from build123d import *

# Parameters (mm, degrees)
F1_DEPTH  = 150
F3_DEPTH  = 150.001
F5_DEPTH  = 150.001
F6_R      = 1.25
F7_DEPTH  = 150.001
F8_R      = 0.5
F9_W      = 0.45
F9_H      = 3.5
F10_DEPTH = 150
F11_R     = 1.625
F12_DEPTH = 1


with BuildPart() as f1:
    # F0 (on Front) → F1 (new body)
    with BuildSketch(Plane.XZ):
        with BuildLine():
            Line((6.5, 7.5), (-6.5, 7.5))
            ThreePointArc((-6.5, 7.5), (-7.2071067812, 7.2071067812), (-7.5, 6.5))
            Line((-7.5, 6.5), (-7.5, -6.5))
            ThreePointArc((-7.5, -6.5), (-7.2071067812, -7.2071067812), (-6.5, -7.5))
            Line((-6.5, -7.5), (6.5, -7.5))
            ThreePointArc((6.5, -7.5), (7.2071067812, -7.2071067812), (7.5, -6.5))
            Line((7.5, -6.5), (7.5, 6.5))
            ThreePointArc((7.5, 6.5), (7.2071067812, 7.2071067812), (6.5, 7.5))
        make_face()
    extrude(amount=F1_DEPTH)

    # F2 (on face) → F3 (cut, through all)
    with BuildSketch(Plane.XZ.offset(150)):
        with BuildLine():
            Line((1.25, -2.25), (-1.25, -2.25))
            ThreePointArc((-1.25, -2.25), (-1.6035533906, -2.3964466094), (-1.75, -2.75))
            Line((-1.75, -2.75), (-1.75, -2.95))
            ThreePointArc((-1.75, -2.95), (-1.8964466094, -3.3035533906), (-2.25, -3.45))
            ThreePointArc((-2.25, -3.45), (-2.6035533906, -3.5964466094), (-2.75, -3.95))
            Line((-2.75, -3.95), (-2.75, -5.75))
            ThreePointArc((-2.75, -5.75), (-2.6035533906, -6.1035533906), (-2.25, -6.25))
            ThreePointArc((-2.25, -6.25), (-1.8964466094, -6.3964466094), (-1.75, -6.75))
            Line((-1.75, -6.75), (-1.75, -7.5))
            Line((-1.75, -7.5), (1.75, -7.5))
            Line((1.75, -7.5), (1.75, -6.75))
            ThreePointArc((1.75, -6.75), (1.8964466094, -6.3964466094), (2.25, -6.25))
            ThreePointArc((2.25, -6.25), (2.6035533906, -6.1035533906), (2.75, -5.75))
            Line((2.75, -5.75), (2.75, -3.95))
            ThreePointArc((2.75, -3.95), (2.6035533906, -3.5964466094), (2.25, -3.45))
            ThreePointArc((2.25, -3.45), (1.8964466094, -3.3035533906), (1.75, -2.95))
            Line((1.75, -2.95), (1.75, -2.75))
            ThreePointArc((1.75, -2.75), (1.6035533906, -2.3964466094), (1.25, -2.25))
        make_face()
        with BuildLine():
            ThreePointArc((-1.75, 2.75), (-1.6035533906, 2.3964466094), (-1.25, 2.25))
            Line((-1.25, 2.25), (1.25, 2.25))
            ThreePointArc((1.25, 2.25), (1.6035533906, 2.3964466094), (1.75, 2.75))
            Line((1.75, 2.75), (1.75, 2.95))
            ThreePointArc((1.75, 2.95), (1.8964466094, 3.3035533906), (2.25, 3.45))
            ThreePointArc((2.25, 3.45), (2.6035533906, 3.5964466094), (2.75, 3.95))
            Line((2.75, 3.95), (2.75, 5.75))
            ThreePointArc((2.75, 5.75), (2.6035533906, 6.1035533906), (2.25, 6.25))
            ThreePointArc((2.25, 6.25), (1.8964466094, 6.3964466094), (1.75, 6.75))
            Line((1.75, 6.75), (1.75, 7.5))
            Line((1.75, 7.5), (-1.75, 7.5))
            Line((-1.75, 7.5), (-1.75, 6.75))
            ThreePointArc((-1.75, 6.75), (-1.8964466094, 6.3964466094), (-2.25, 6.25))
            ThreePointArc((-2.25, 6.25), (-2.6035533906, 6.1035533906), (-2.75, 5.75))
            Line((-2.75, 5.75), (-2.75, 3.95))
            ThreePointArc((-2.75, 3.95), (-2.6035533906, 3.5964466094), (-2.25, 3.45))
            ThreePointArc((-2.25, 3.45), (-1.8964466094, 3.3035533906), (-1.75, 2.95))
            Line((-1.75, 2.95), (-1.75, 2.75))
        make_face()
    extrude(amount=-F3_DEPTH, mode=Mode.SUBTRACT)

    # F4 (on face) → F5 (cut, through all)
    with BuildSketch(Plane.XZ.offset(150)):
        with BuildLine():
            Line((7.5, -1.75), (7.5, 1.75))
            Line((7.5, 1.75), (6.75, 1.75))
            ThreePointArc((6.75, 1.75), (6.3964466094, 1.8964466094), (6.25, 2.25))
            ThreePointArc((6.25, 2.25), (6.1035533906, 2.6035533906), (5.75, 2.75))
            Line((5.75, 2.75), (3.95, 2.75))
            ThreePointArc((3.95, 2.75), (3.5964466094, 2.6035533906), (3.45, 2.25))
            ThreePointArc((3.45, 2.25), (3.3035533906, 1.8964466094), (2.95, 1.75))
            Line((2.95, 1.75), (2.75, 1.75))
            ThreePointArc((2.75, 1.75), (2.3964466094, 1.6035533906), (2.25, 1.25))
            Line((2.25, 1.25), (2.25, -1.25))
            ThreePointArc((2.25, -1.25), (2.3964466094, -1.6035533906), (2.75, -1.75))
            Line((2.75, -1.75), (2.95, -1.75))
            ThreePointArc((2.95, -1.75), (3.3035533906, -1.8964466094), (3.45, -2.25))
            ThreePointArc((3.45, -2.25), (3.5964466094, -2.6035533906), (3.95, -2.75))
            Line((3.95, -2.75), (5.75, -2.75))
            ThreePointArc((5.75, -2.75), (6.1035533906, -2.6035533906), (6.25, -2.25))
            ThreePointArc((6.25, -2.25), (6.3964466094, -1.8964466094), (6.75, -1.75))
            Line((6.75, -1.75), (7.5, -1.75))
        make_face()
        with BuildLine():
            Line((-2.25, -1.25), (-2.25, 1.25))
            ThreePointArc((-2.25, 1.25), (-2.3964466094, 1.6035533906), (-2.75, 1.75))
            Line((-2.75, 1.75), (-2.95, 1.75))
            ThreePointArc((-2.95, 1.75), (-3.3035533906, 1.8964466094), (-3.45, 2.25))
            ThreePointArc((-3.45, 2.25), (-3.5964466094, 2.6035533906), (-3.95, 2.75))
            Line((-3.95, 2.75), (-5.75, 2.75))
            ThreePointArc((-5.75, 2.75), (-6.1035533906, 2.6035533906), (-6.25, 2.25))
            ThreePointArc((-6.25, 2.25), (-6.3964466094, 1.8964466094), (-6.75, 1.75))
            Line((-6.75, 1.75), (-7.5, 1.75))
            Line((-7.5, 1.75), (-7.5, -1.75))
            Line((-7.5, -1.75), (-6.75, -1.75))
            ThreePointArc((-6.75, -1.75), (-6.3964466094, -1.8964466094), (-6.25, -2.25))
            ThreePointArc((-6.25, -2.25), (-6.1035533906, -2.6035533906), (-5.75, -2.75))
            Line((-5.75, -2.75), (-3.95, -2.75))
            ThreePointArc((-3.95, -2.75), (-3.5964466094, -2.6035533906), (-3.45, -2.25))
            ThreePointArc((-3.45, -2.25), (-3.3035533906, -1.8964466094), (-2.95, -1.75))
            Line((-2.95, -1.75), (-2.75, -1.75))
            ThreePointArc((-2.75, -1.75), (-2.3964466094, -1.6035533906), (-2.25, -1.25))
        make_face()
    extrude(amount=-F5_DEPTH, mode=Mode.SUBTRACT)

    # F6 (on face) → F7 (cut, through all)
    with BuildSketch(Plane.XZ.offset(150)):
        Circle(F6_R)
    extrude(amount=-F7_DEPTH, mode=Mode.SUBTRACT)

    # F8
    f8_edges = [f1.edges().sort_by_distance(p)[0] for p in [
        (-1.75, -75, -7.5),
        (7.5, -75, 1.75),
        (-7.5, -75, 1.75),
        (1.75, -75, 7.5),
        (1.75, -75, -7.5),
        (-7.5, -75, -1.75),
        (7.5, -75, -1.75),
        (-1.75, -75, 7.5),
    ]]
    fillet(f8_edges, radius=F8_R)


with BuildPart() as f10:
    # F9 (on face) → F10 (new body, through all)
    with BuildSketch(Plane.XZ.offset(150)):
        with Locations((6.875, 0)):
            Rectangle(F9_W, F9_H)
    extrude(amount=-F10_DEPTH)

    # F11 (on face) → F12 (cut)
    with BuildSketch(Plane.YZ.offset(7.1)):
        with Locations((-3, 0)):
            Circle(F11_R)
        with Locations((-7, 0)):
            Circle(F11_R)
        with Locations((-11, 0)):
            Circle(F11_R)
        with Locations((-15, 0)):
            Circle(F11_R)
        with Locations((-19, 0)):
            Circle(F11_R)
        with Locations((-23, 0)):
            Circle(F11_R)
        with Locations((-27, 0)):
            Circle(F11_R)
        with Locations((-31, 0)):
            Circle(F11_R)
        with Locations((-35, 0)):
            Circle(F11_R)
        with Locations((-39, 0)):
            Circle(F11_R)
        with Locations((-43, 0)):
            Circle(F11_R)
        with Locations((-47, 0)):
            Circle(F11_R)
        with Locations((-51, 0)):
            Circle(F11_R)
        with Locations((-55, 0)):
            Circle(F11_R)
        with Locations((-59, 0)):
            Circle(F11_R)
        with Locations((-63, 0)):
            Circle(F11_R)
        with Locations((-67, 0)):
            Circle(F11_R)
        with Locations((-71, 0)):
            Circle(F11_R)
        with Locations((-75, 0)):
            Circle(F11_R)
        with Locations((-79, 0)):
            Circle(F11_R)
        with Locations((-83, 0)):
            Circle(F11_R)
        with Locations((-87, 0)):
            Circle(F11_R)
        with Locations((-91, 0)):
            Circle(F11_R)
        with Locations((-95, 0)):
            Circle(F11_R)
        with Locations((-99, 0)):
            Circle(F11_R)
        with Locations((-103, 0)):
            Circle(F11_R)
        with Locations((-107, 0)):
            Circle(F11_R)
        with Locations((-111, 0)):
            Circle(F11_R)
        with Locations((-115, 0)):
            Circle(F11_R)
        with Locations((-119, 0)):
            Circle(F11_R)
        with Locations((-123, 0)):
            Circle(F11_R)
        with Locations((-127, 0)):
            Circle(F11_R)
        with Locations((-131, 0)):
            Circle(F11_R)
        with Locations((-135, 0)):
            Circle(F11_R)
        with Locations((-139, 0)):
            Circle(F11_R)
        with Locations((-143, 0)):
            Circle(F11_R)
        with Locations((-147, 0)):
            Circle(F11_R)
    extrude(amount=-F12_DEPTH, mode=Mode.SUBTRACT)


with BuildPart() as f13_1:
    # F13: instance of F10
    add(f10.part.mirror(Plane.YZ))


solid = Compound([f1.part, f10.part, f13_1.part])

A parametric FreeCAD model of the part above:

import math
import FreeCAD as App
import Part
import Sketcher

V = App.Vector
Q = App.Units.Quantity


def edges_at(feature, points):
    """Names of the edges that pass closest to the given points."""
    edges = feature.Shape.Edges
    near = lambda p: min(range(len(edges)), key=lambda i: edges[i].distToShape(Part.Vertex(*p))[0])
    return sorted({f"Edge{near(p) + 1}" for p in points})

doc = App.newDocument("Part")
body = doc.addObject("PartDesign::Body", "Body")

# Sketch on XZ plane
sketch1 = body.newObject("Sketcher::SketchObject", "Sketch")
sketch1.AttachmentSupport = (doc.getObject("XZ_Plane"), [""])
sketch1.MapMode = "FlatFace"
sketch1.addGeometry(Part.LineSegment(V(6.5, 7.5, 0), V(-6.5, 7.5, 0)), False)
sketch1.addGeometry(Part.ArcOfCircle(Part.Circle(V(-6.5, 6.5, 0), V(0, 0, 1), 1), math.radians(90), math.radians(180)), False)
sketch1.addGeometry(Part.LineSegment(V(-7.5, 6.5, 0), V(-7.5, -6.5, 0)), False)
sketch1.addGeometry(Part.ArcOfCircle(Part.Circle(V(-6.5, -6.5, 0), V(0, 0, 1), 1), math.radians(180), math.radians(270)), False)
sketch1.addGeometry(Part.LineSegment(V(-6.5, -7.5, 0), V(6.5, -7.5, 0)), False)
sketch1.addGeometry(Part.ArcOfCircle(Part.Circle(V(6.5, -6.5, 0), V(0, 0, 1), 1), math.radians(-90), math.radians(0)), False)
sketch1.addGeometry(Part.LineSegment(V(7.5, -6.5, 0), V(7.5, 6.5, 0)), False)
sketch1.addGeometry(Part.ArcOfCircle(Part.Circle(V(6.5, 6.5, 0), V(0, 0, 1), 1), math.radians(0), math.radians(90)), False)
sketch1.addConstraint(Sketcher.Constraint("Tangent", 0, 2, 1, 1))
sketch1.addConstraint(Sketcher.Constraint("Tangent", 1, 2, 2, 1))
sketch1.addConstraint(Sketcher.Constraint("Tangent", 2, 2, 3, 1))
sketch1.addConstraint(Sketcher.Constraint("Tangent", 3, 2, 4, 1))
sketch1.addConstraint(Sketcher.Constraint("Tangent", 4, 2, 5, 1))
sketch1.addConstraint(Sketcher.Constraint("Tangent", 5, 2, 6, 1))
sketch1.addConstraint(Sketcher.Constraint("Tangent", 6, 2, 7, 1))
sketch1.addConstraint(Sketcher.Constraint("Tangent", 7, 2, 0, 1))
sketch1.addConstraint(Sketcher.Constraint("Horizontal", 0))
sketch1.addConstraint(Sketcher.Constraint("Vertical", 2))
sketch1.addConstraint(Sketcher.Constraint("Horizontal", 4))
sketch1.addConstraint(Sketcher.Constraint("Vertical", 6))
sketch1.addConstraint(Sketcher.Constraint("Equal", 1, 3))
sketch1.addConstraint(Sketcher.Constraint("Equal", 3, 5))
sketch1.addConstraint(Sketcher.Constraint("Equal", 5, 7))
sketch1.addConstraint(Sketcher.Constraint("Symmetric", 1, 3, 5, 3, -1, 1))
sketch1.addConstraint(Sketcher.Constraint("Equal", 4, 2))
sketch1.addConstraint(Sketcher.Constraint("Radius", 1, Q("1 mm")))
sketch1.addConstraint(Sketcher.Constraint("DistanceX", 0, 2, 0, 1, Q("13 mm")))
pad1 = body.newObject("PartDesign::Pad", "Pad")
pad1.Profile = sketch1
pad1.Length = 150

# Sketch on XZ plane
sketch2 = body.newObject("Sketcher::SketchObject", "Sketch001")
sketch2.AttachmentSupport = (doc.getObject("XZ_Plane"), [""])
sketch2.MapMode = "FlatFace"
sketch2.AttachmentOffset = App.Placement(V(0, 0, 150), App.Rotation())
sketch2.addGeometry(Part.LineSegment(V(1.25, -2.25, 0), V(-1.25, -2.25, 0)), False)
sketch2.addGeometry(Part.ArcOfCircle(Part.Circle(V(-1.25, -2.75, 0), V(0, 0, 1), 0.5), math.radians(90), math.radians(180)), False)
sketch2.addGeometry(Part.LineSegment(V(-1.75, -2.75, 0), V(-1.75, -2.95, 0)), False)
sketch2.addGeometry(Part.ArcOfCircle(Part.Circle(V(-2.25, -2.95, 0), V(0, 0, 1), 0.5), math.radians(-90), math.radians(0)), False)
sketch2.addGeometry(Part.ArcOfCircle(Part.Circle(V(-2.25, -3.95, 0), V(0, 0, 1), 0.5), math.radians(90), math.radians(180)), False)
sketch2.addGeometry(Part.LineSegment(V(-2.75, -3.95, 0), V(-2.75, -5.75, 0)), False)
sketch2.addGeometry(Part.ArcOfCircle(Part.Circle(V(-2.25, -5.75, 0), V(0, 0, 1), 0.5), math.radians(180), math.radians(270)), False)
sketch2.addGeometry(Part.ArcOfCircle(Part.Circle(V(-2.25, -6.75, 0), V(0, 0, 1), 0.5), math.radians(0), math.radians(90)), False)
sketch2.addGeometry(Part.LineSegment(V(-1.75, -6.75, 0), V(-1.75, -7.5, 0)), False)
sketch2.addGeometry(Part.LineSegment(V(-1.75, -7.5, 0), V(1.75, -7.5, 0)), False)
sketch2.addGeometry(Part.LineSegment(V(1.75, -7.5, 0), V(1.75, -6.75, 0)), False)
sketch2.addGeometry(Part.ArcOfCircle(Part.Circle(V(2.25, -6.75, 0), V(0, 0, 1), 0.5), math.radians(90), math.radians(180)), False)
sketch2.addGeometry(Part.ArcOfCircle(Part.Circle(V(2.25, -5.75, 0), V(0, 0, 1), 0.5), math.radians(-90), math.radians(0)), False)
sketch2.addGeometry(Part.LineSegment(V(2.75, -5.75, 0), V(2.75, -3.95, 0)), False)
sketch2.addGeometry(Part.ArcOfCircle(Part.Circle(V(2.25, -3.95, 0), V(0, 0, 1), 0.5), math.radians(0), math.radians(90)), False)
sketch2.addGeometry(Part.ArcOfCircle(Part.Circle(V(2.25, -2.95, 0), V(0, 0, 1), 0.5), math.radians(180), math.radians(270)), False)
sketch2.addGeometry(Part.LineSegment(V(1.75, -2.95, 0), V(1.75, -2.75, 0)), False)
sketch2.addGeometry(Part.ArcOfCircle(Part.Circle(V(1.25, -2.75, 0), V(0, 0, 1), 0.5), math.radians(0), math.radians(90)), False)
sketch2.addGeometry(Part.ArcOfCircle(Part.Circle(V(-1.25, 2.75, 0), V(0, 0, 1), 0.5), math.radians(180), math.radians(270)), False)
sketch2.addGeometry(Part.LineSegment(V(-1.25, 2.25, 0), V(1.25, 2.25, 0)), False)
sketch2.addGeometry(Part.ArcOfCircle(Part.Circle(V(1.25, 2.75, 0), V(0, 0, 1), 0.5), math.radians(-90), math.radians(0)), False)
sketch2.addGeometry(Part.LineSegment(V(1.75, 2.75, 0), V(1.75, 2.95, 0)), False)
sketch2.addGeometry(Part.ArcOfCircle(Part.Circle(V(2.25, 2.95, 0), V(0, 0, 1), 0.5), math.radians(90), math.radians(180)), False)
sketch2.addGeometry(Part.ArcOfCircle(Part.Circle(V(2.25, 3.95, 0), V(0, 0, 1), 0.5), math.radians(-90), math.radians(0)), False)
sketch2.addGeometry(Part.LineSegment(V(2.75, 3.95, 0), V(2.75, 5.75, 0)), False)
sketch2.addGeometry(Part.ArcOfCircle(Part.Circle(V(2.25, 5.75, 0), V(0, 0, 1), 0.5), math.radians(0), math.radians(90)), False)
sketch2.addGeometry(Part.ArcOfCircle(Part.Circle(V(2.25, 6.75, 0), V(0, 0, 1), 0.5), math.radians(180), math.radians(270)), False)
sketch2.addGeometry(Part.LineSegment(V(1.75, 6.75, 0), V(1.75, 7.5, 0)), False)
sketch2.addGeometry(Part.LineSegment(V(1.75, 7.5, 0), V(-1.75, 7.5, 0)), False)
sketch2.addGeometry(Part.LineSegment(V(-1.75, 7.5, 0), V(-1.75, 6.75, 0)), False)
sketch2.addGeometry(Part.ArcOfCircle(Part.Circle(V(-2.25, 6.75, 0), V(0, 0, 1), 0.5), math.radians(-90), math.radians(0)), False)
sketch2.addGeometry(Part.ArcOfCircle(Part.Circle(V(-2.25, 5.75, 0), V(0, 0, 1), 0.5), math.radians(90), math.radians(180)), False)
sketch2.addGeometry(Part.LineSegment(V(-2.75, 5.75, 0), V(-2.75, 3.95, 0)), False)
sketch2.addGeometry(Part.ArcOfCircle(Part.Circle(V(-2.25, 3.95, 0), V(0, 0, 1), 0.5), math.radians(180), math.radians(270)), False)
sketch2.addGeometry(Part.ArcOfCircle(Part.Circle(V(-2.25, 2.95, 0), V(0, 0, 1), 0.5), math.radians(0), math.radians(90)), False)
sketch2.addGeometry(Part.LineSegment(V(-1.75, 2.95, 0), V(-1.75, 2.75, 0)), False)
sketch2.addConstraint(Sketcher.Constraint("Tangent", 0, 2, 1, 1))
sketch2.addConstraint(Sketcher.Constraint("Tangent", 1, 2, 2, 1))
sketch2.addConstraint(Sketcher.Constraint("Tangent", 2, 2, 3, 2))
sketch2.addConstraint(Sketcher.Constraint("Tangent", 3, 1, 4, 1))
sketch2.addConstraint(Sketcher.Constraint("Tangent", 4, 2, 5, 1))
sketch2.addConstraint(Sketcher.Constraint("Tangent", 5, 2, 6, 1))
sketch2.addConstraint(Sketcher.Constraint("Tangent", 6, 2, 7, 2))
sketch2.addConstraint(Sketcher.Constraint("Tangent", 7, 1, 8, 1))
sketch2.addConstraint(Sketcher.Constraint("Coincident", 8, 2, 9, 1))
sketch2.addConstraint(Sketcher.Constraint("Coincident", 9, 2, 10, 1))
sketch2.addConstraint(Sketcher.Constraint("Tangent", 10, 2, 11, 2))
sketch2.addConstraint(Sketcher.Constraint("Tangent", 11, 1, 12, 1))
sketch2.addConstraint(Sketcher.Constraint("Tangent", 12, 2, 13, 1))
sketch2.addConstraint(Sketcher.Constraint("Tangent", 13, 2, 14, 1))
sketch2.addConstraint(Sketcher.Constraint("Tangent", 14, 2, 15, 2))
sketch2.addConstraint(Sketcher.Constraint("Tangent", 15, 1, 16, 1))
sketch2.addConstraint(Sketcher.Constraint("Tangent", 16, 2, 17, 1))
sketch2.addConstraint(Sketcher.Constraint("Tangent", 17, 2, 0, 1))
sketch2.addConstraint(Sketcher.Constraint("Tangent", 18, 2, 19, 1))
sketch2.addConstraint(Sketcher.Constraint("Tangent", 19, 2, 20, 1))
sketch2.addConstraint(Sketcher.Constraint("Tangent", 20, 2, 21, 1))
sketch2.addConstraint(Sketcher.Constraint("Tangent", 21, 2, 22, 2))
sketch2.addConstraint(Sketcher.Constraint("Tangent", 22, 1, 23, 1))
sketch2.addConstraint(Sketcher.Constraint("Tangent", 23, 2, 24, 1))
sketch2.addConstraint(Sketcher.Constraint("Tangent", 24, 2, 25, 1))
sketch2.addConstraint(Sketcher.Constraint("Tangent", 25, 2, 26, 2))
sketch2.addConstraint(Sketcher.Constraint("Tangent", 26, 1, 27, 1))
sketch2.addConstraint(Sketcher.Constraint("Coincident", 27, 2, 28, 1))
sketch2.addConstraint(Sketcher.Constraint("Coincident", 28, 2, 29, 1))
sketch2.addConstraint(Sketcher.Constraint("Tangent", 29, 2, 30, 2))
sketch2.addConstraint(Sketcher.Constraint("Tangent", 30, 1, 31, 1))
sketch2.addConstraint(Sketcher.Constraint("Tangent", 31, 2, 32, 1))
sketch2.addConstraint(Sketcher.Constraint("Tangent", 32, 2, 33, 1))
sketch2.addConstraint(Sketcher.Constraint("Tangent", 33, 2, 34, 2))
sketch2.addConstraint(Sketcher.Constraint("Tangent", 34, 1, 35, 1))
sketch2.addConstraint(Sketcher.Constraint("Tangent", 35, 2, 18, 1))
sketch2.addConstraint(Sketcher.Constraint("Horizontal", 0))
sketch2.addConstraint(Sketcher.Constraint("Vertical", 2))
sketch2.addConstraint(Sketcher.Constraint("Vertical", 5))
sketch2.addConstraint(Sketcher.Constraint("Vertical", 8))
sketch2.addConstraint(Sketcher.Constraint("Horizontal", 9))
sketch2.addConstraint(Sketcher.Constraint("Vertical", 10))
sketch2.addConstraint(Sketcher.Constraint("Vertical", 13))
sketch2.addConstraint(Sketcher.Constraint("Vertical", 16))
sketch2.addConstraint(Sketcher.Constraint("Horizontal", 19))
sketch2.addConstraint(Sketcher.Constraint("Vertical", 21))
sketch2.addConstraint(Sketcher.Constraint("Vertical", 24))
sketch2.addConstraint(Sketcher.Constraint("Vertical", 27))
sketch2.addConstraint(Sketcher.Constraint("Horizontal", 28))
sketch2.addConstraint(Sketcher.Constraint("Vertical", 29))
sketch2.addConstraint(Sketcher.Constraint("Vertical", 32))
sketch2.addConstraint(Sketcher.Constraint("Vertical", 35))
sketch2.addConstraint(Sketcher.Constraint("Equal", 1, 3))
sketch2.addConstraint(Sketcher.Constraint("Equal", 3, 4))
sketch2.addConstraint(Sketcher.Constraint("Equal", 4, 6))
sketch2.addConstraint(Sketcher.Constraint("Equal", 6, 7))
sketch2.addConstraint(Sketcher.Constraint("Equal", 7, 11))
sketch2.addConstraint(Sketcher.Constraint("Equal", 11, 12))
sketch2.addConstraint(Sketcher.Constraint("Equal", 12, 14))
sketch2.addConstraint(Sketcher.Constraint("Equal", 14, 15))
sketch2.addConstraint(Sketcher.Constraint("Equal", 15, 17))
sketch2.addConstraint(Sketcher.Constraint("Equal", 17, 18))
sketch2.addConstraint(Sketcher.Constraint("Equal", 18, 20))
sketch2.addConstraint(Sketcher.Constraint("Equal", 20, 22))
sketch2.addConstraint(Sketcher.Constraint("Equal", 22, 23))
sketch2.addConstraint(Sketcher.Constraint("Equal", 23, 25))
sketch2.addConstraint(Sketcher.Constraint("Equal", 25, 26))
sketch2.addConstraint(Sketcher.Constraint("Equal", 26, 30))
sketch2.addConstraint(Sketcher.Constraint("Equal", 30, 31))
sketch2.addConstraint(Sketcher.Constraint("Equal", 31, 33))
sketch2.addConstraint(Sketcher.Constraint("Equal", 33, 34))
sketch2.addConstraint(Sketcher.Constraint("Symmetric", 17, 3, 18, 3, -1, 1))
sketch2.addConstraint(Sketcher.Constraint("Symmetric", 3, 3, 22, 3, -1, 1))
sketch2.addConstraint(Sketcher.Constraint("Symmetric", 6, 3, 25, 3, -1, 1))
sketch2.addConstraint(Sketcher.Constraint("Symmetric", 11, 3, 30, 3, -1, 1))
sketch2.addConstraint(Sketcher.Constraint("Symmetric", 14, 3, 33, 3, -1, 1))
sketch2.addConstraint(Sketcher.Constraint("Symmetric", 8, 2, 27, 2, -1, 1))
sketch2.addConstraint(Sketcher.Constraint("Symmetric", 7, 3, 11, 3, -2))
sketch2.addConstraint(Sketcher.Constraint("Symmetric", 4, 3, 14, 3, -2))
sketch2.addConstraint(Sketcher.Constraint("Vertical", 3, 3, 4, 3))
sketch2.addConstraint(Sketcher.Constraint("Vertical", 6, 3, 7, 3))
sketch2.addConstraint(Sketcher.Constraint("Vertical", 14, 3, 15, 3))
sketch2.addConstraint(Sketcher.Constraint("Radius", 1, Q("0.5 mm")))
sketch2.addConstraint(Sketcher.Constraint("DistanceX", 0, 2, 0, 1, Q("2.5 mm")))
sketch2.addConstraint(Sketcher.Constraint("DistanceY", 2, 2, 2, 1, Q("0.2 mm")))
sketch2.addConstraint(Sketcher.Constraint("DistanceY", 5, 2, 5, 1, Q("1.8 mm")))
sketch2.addConstraint(Sketcher.Constraint("DistanceY", 8, 2, 8, 1, Q("0.75 mm")))
sketch2.addConstraint(Sketcher.Constraint("DistanceY", 8, 2, -1, 1, Q("7.5 mm")))
pocket1 = body.newObject("PartDesign::Pocket", "Pocket")
pocket1.Profile = sketch2
pocket1.Type = "ThroughAll"

# Sketch on XZ plane
sketch3 = body.newObject("Sketcher::SketchObject", "Sketch002")
sketch3.AttachmentSupport = (doc.getObject("XZ_Plane"), [""])
sketch3.MapMode = "FlatFace"
sketch3.AttachmentOffset = App.Placement(V(0, 0, 150), App.Rotation())
sketch3.addGeometry(Part.LineSegment(V(7.5, -1.75, 0), V(7.5, 1.75, 0)), False)
sketch3.addGeometry(Part.LineSegment(V(7.5, 1.75, 0), V(6.75, 1.75, 0)), False)
sketch3.addGeometry(Part.ArcOfCircle(Part.Circle(V(6.75, 2.25, 0), V(0, 0, 1), 0.5), math.radians(180), math.radians(270)), False)
sketch3.addGeometry(Part.ArcOfCircle(Part.Circle(V(5.75, 2.25, 0), V(0, 0, 1), 0.5), math.radians(0), math.radians(90)), False)
sketch3.addGeometry(Part.LineSegment(V(5.75, 2.75, 0), V(3.95, 2.75, 0)), False)
sketch3.addGeometry(Part.ArcOfCircle(Part.Circle(V(3.95, 2.25, 0), V(0, 0, 1), 0.5), math.radians(90), math.radians(180)), False)
sketch3.addGeometry(Part.ArcOfCircle(Part.Circle(V(2.95, 2.25, 0), V(0, 0, 1), 0.5), math.radians(-90), math.radians(0)), False)
sketch3.addGeometry(Part.LineSegment(V(2.95, 1.75, 0), V(2.75, 1.75, 0)), False)
sketch3.addGeometry(Part.ArcOfCircle(Part.Circle(V(2.75, 1.25, 0), V(0, 0, 1), 0.5), math.radians(90), math.radians(180)), False)
sketch3.addGeometry(Part.LineSegment(V(2.25, 1.25, 0), V(2.25, -1.25, 0)), False)
sketch3.addGeometry(Part.ArcOfCircle(Part.Circle(V(2.75, -1.25, 0), V(0, 0, 1), 0.5), math.radians(180), math.radians(270)), False)
sketch3.addGeometry(Part.LineSegment(V(2.75, -1.75, 0), V(2.95, -1.75, 0)), False)
sketch3.addGeometry(Part.ArcOfCircle(Part.Circle(V(2.95, -2.25, 0), V(0, 0, 1), 0.5), math.radians(0), math.radians(90)), False)
sketch3.addGeometry(Part.ArcOfCircle(Part.Circle(V(3.95, -2.25, 0), V(0, 0, 1), 0.5), math.radians(180), math.radians(270)), False)
sketch3.addGeometry(Part.LineSegment(V(3.95, -2.75, 0), V(5.75, -2.75, 0)), False)
sketch3.addGeometry(Part.ArcOfCircle(Part.Circle(V(5.75, -2.25, 0), V(0, 0, 1), 0.5), math.radians(-90), math.radians(0)), False)
sketch3.addGeometry(Part.ArcOfCircle(Part.Circle(V(6.75, -2.25, 0), V(0, 0, 1), 0.5), math.radians(90), math.radians(180)), False)
sketch3.addGeometry(Part.LineSegment(V(6.75, -1.75, 0), V(7.5, -1.75, 0)), False)
sketch3.addGeometry(Part.LineSegment(V(-2.25, -1.25, 0), V(-2.25, 1.25, 0)), False)
sketch3.addGeometry(Part.ArcOfCircle(Part.Circle(V(-2.75, 1.25, 0), V(0, 0, 1), 0.5), math.radians(0), math.radians(90)), False)
sketch3.addGeometry(Part.LineSegment(V(-2.75, 1.75, 0), V(-2.95, 1.75, 0)), False)
sketch3.addGeometry(Part.ArcOfCircle(Part.Circle(V(-2.95, 2.25, 0), V(0, 0, 1), 0.5), math.radians(180), math.radians(270)), False)
sketch3.addGeometry(Part.ArcOfCircle(Part.Circle(V(-3.95, 2.25, 0), V(0, 0, 1), 0.5), math.radians(0), math.radians(90)), False)
sketch3.addGeometry(Part.LineSegment(V(-3.95, 2.75, 0), V(-5.75, 2.75, 0)), False)
sketch3.addGeometry(Part.ArcOfCircle(Part.Circle(V(-5.75, 2.25, 0), V(0, 0, 1), 0.5), math.radians(90), math.radians(180)), False)
sketch3.addGeometry(Part.ArcOfCircle(Part.Circle(V(-6.75, 2.25, 0), V(0, 0, 1), 0.5), math.radians(-90), math.radians(0)), False)
sketch3.addGeometry(Part.LineSegment(V(-6.75, 1.75, 0), V(-7.5, 1.75, 0)), False)
sketch3.addGeometry(Part.LineSegment(V(-7.5, 1.75, 0), V(-7.5, -1.75, 0)), False)
sketch3.addGeometry(Part.LineSegment(V(-7.5, -1.75, 0), V(-6.75, -1.75, 0)), False)
sketch3.addGeometry(Part.ArcOfCircle(Part.Circle(V(-6.75, -2.25, 0), V(0, 0, 1), 0.5), math.radians(0), math.radians(90)), False)
sketch3.addGeometry(Part.ArcOfCircle(Part.Circle(V(-5.75, -2.25, 0), V(0, 0, 1), 0.5), math.radians(180), math.radians(270)), False)
sketch3.addGeometry(Part.LineSegment(V(-5.75, -2.75, 0), V(-3.95, -2.75, 0)), False)
sketch3.addGeometry(Part.ArcOfCircle(Part.Circle(V(-3.95, -2.25, 0), V(0, 0, 1), 0.5), math.radians(-90), math.radians(0)), False)
sketch3.addGeometry(Part.ArcOfCircle(Part.Circle(V(-2.95, -2.25, 0), V(0, 0, 1), 0.5), math.radians(90), math.radians(180)), False)
sketch3.addGeometry(Part.LineSegment(V(-2.95, -1.75, 0), V(-2.75, -1.75, 0)), False)
sketch3.addGeometry(Part.ArcOfCircle(Part.Circle(V(-2.75, -1.25, 0), V(0, 0, 1), 0.5), math.radians(-90), math.radians(0)), False)
sketch3.addConstraint(Sketcher.Constraint("Coincident", 0, 2, 1, 1))
sketch3.addConstraint(Sketcher.Constraint("Tangent", 1, 2, 2, 2))
sketch3.addConstraint(Sketcher.Constraint("Tangent", 2, 1, 3, 1))
sketch3.addConstraint(Sketcher.Constraint("Tangent", 3, 2, 4, 1))
sketch3.addConstraint(Sketcher.Constraint("Tangent", 4, 2, 5, 1))
sketch3.addConstraint(Sketcher.Constraint("Tangent", 5, 2, 6, 2))
sketch3.addConstraint(Sketcher.Constraint("Tangent", 6, 1, 7, 1))
sketch3.addConstraint(Sketcher.Constraint("Tangent", 7, 2, 8, 1))
sketch3.addConstraint(Sketcher.Constraint("Tangent", 8, 2, 9, 1))
sketch3.addConstraint(Sketcher.Constraint("Tangent", 9, 2, 10, 1))
sketch3.addConstraint(Sketcher.Constraint("Tangent", 10, 2, 11, 1))
sketch3.addConstraint(Sketcher.Constraint("Tangent", 11, 2, 12, 2))
sketch3.addConstraint(Sketcher.Constraint("Tangent", 12, 1, 13, 1))
sketch3.addConstraint(Sketcher.Constraint("Tangent", 13, 2, 14, 1))
sketch3.addConstraint(Sketcher.Constraint("Tangent", 14, 2, 15, 1))
sketch3.addConstraint(Sketcher.Constraint("Tangent", 15, 2, 16, 2))
sketch3.addConstraint(Sketcher.Constraint("Tangent", 16, 1, 17, 1))
sketch3.addConstraint(Sketcher.Constraint("Coincident", 17, 2, 0, 1))
sketch3.addConstraint(Sketcher.Constraint("Tangent", 18, 2, 19, 1))
sketch3.addConstraint(Sketcher.Constraint("Tangent", 19, 2, 20, 1))
sketch3.addConstraint(Sketcher.Constraint("Tangent", 20, 2, 21, 2))
sketch3.addConstraint(Sketcher.Constraint("Tangent", 21, 1, 22, 1))
sketch3.addConstraint(Sketcher.Constraint("Tangent", 22, 2, 23, 1))
sketch3.addConstraint(Sketcher.Constraint("Tangent", 23, 2, 24, 1))
sketch3.addConstraint(Sketcher.Constraint("Tangent", 24, 2, 25, 2))
sketch3.addConstraint(Sketcher.Constraint("Tangent", 25, 1, 26, 1))
sketch3.addConstraint(Sketcher.Constraint("Coincident", 26, 2, 27, 1))
sketch3.addConstraint(Sketcher.Constraint("Coincident", 27, 2, 28, 1))
sketch3.addConstraint(Sketcher.Constraint("Tangent", 28, 2, 29, 2))
sketch3.addConstraint(Sketcher.Constraint("Tangent", 29, 1, 30, 1))
sketch3.addConstraint(Sketcher.Constraint("Tangent", 30, 2, 31, 1))
sketch3.addConstraint(Sketcher.Constraint("Tangent", 31, 2, 32, 1))
sketch3.addConstraint(Sketcher.Constraint("Tangent", 32, 2, 33, 2))
sketch3.addConstraint(Sketcher.Constraint("Tangent", 33, 1, 34, 1))
sketch3.addConstraint(Sketcher.Constraint("Tangent", 34, 2, 35, 1))
sketch3.addConstraint(Sketcher.Constraint("Tangent", 35, 2, 18, 1))
sketch3.addConstraint(Sketcher.Constraint("Vertical", 0))
sketch3.addConstraint(Sketcher.Constraint("Horizontal", 1))
sketch3.addConstraint(Sketcher.Constraint("Horizontal", 4))
sketch3.addConstraint(Sketcher.Constraint("Horizontal", 7))
sketch3.addConstraint(Sketcher.Constraint("Vertical", 9))
sketch3.addConstraint(Sketcher.Constraint("Horizontal", 11))
sketch3.addConstraint(Sketcher.Constraint("Horizontal", 14))
sketch3.addConstraint(Sketcher.Constraint("Horizontal", 17))
sketch3.addConstraint(Sketcher.Constraint("Vertical", 18))
sketch3.addConstraint(Sketcher.Constraint("Horizontal", 20))
sketch3.addConstraint(Sketcher.Constraint("Horizontal", 23))
sketch3.addConstraint(Sketcher.Constraint("Horizontal", 26))
sketch3.addConstraint(Sketcher.Constraint("Vertical", 27))
sketch3.addConstraint(Sketcher.Constraint("Horizontal", 28))
sketch3.addConstraint(Sketcher.Constraint("Horizontal", 31))
sketch3.addConstraint(Sketcher.Constraint("Horizontal", 34))
sketch3.addConstraint(Sketcher.Constraint("Equal", 2, 3))
sketch3.addConstraint(Sketcher.Constraint("Equal", 3, 5))
sketch3.addConstraint(Sketcher.Constraint("Equal", 5, 6))
sketch3.addConstraint(Sketcher.Constraint("Equal", 6, 8))
sketch3.addConstraint(Sketcher.Constraint("Equal", 8, 10))
sketch3.addConstraint(Sketcher.Constraint("Equal", 10, 12))
sketch3.addConstraint(Sketcher.Constraint("Equal", 12, 13))
sketch3.addConstraint(Sketcher.Constraint("Equal", 13, 15))
sketch3.addConstraint(Sketcher.Constraint("Equal", 15, 16))
sketch3.addConstraint(Sketcher.Constraint("Equal", 16, 19))
sketch3.addConstraint(Sketcher.Constraint("Equal", 19, 21))
sketch3.addConstraint(Sketcher.Constraint("Equal", 21, 22))
sketch3.addConstraint(Sketcher.Constraint("Equal", 22, 24))
sketch3.addConstraint(Sketcher.Constraint("Equal", 24, 25))
sketch3.addConstraint(Sketcher.Constraint("Equal", 25, 29))
sketch3.addConstraint(Sketcher.Constraint("Equal", 29, 30))
sketch3.addConstraint(Sketcher.Constraint("Equal", 30, 32))
sketch3.addConstraint(Sketcher.Constraint("Equal", 32, 33))
sketch3.addConstraint(Sketcher.Constraint("Equal", 33, 35))
sketch3.addConstraint(Sketcher.Constraint("Symmetric", 10, 3, 19, 3, -1, 1))
sketch3.addConstraint(Sketcher.Constraint("Symmetric", 13, 3, 22, 3, -1, 1))
sketch3.addConstraint(Sketcher.Constraint("Symmetric", 16, 3, 25, 3, -1, 1))
sketch3.addConstraint(Sketcher.Constraint("Symmetric", 2, 3, 29, 3, -1, 1))
sketch3.addConstraint(Sketcher.Constraint("Symmetric", 5, 3, 32, 3, -1, 1))
sketch3.addConstraint(Sketcher.Constraint("Symmetric", 6, 3, 21, 3, -2))
sketch3.addConstraint(Sketcher.Constraint("Symmetric", 3, 3, 24, 3, -2))
sketch3.addConstraint(Sketcher.Constraint("Symmetric", 0, 2, 26, 2, -2))
sketch3.addConstraint(Sketcher.Constraint("Horizontal", 2, 3, 3, 3))
sketch3.addConstraint(Sketcher.Constraint("Horizontal", 5, 3, 6, 3))
sketch3.addConstraint(Sketcher.Constraint("Horizontal", 32, 3, 33, 3))
sketch3.addConstraint(Sketcher.Constraint("Radius", 2, Q("0.5 mm")))
sketch3.addConstraint(Sketcher.Constraint("DistanceX", 4, 2, 4, 1, Q("1.8 mm")))
sketch3.addConstraint(Sketcher.Constraint("DistanceX", 7, 2, 7, 1, Q("0.2 mm")))
sketch3.addConstraint(Sketcher.Constraint("DistanceY", 0, 1, 0, 2, Q("3.5 mm")))
sketch3.addConstraint(Sketcher.Constraint("DistanceX", 1, 2, 1, 1, Q("0.75 mm")))
sketch3.addConstraint(Sketcher.Constraint("DistanceX", -1, 1, 0, 2, Q("7.5 mm")))
pocket2 = body.newObject("PartDesign::Pocket", "Pocket001")
pocket2.Profile = sketch3
pocket2.Type = "ThroughAll"

# Sketch on XZ plane
sketch4 = body.newObject("Sketcher::SketchObject", "Sketch003")
sketch4.AttachmentSupport = (doc.getObject("XZ_Plane"), [""])
sketch4.MapMode = "FlatFace"
sketch4.AttachmentOffset = App.Placement(V(0, 0, 150), App.Rotation())
sketch4.addGeometry(Part.Circle(V(0, 0, 0), V(0, 0, 1), 1.2), False)
sketch4.addConstraint(Sketcher.Constraint("Coincident", 0, 3, -1, 1))
sketch4.addConstraint(Sketcher.Constraint("Diameter", 0, Q("2.5 mm")))
pocket3 = body.newObject("PartDesign::Pocket", "Pocket002")
pocket3.Profile = sketch4
pocket3.Type = "ThroughAll"
doc.recompute()

fillet = body.newObject("PartDesign::Fillet", "Fillet")
fillet.Base = (pocket3, edges_at(pocket3, [
    (-1.75, -75, -7.5),
    (7.5, -75, 1.75),
    (-7.5, -75, 1.75),
    (1.75, -75, 7.5),
    (1.75, -75, -7.5),
    (-7.5, -75, -1.75),
    (7.5, -75, -1.75),
    (-1.75, -75, 7.5),
]))
fillet.Radius = 0.5
body2 = doc.addObject("PartDesign::Body", "Body001")

# Sketch on XZ plane
sketch5 = body2.newObject("Sketcher::SketchObject", "Sketch004")
sketch5.AttachmentSupport = (doc.getObject("XZ_Plane001"), [""])
sketch5.MapMode = "FlatFace"
sketch5.AttachmentOffset = App.Placement(V(0, 0, 150), App.Rotation())
sketch5.addGeometry(Part.LineSegment(V(6.65, 1.75, 0), V(6.65, -1.75, 0)), False)
sketch5.addGeometry(Part.LineSegment(V(6.65, -1.75, 0), V(7.1, -1.75, 0)), False)
sketch5.addGeometry(Part.LineSegment(V(7.1, -1.75, 0), V(7.1, 1.75, 0)), False)
sketch5.addGeometry(Part.LineSegment(V(7.1, 1.75, 0), V(6.65, 1.75, 0)), False)
sketch5.addConstraint(Sketcher.Constraint("Coincident", 0, 2, 1, 1))
sketch5.addConstraint(Sketcher.Constraint("Coincident", 1, 2, 2, 1))
sketch5.addConstraint(Sketcher.Constraint("Coincident", 2, 2, 3, 1))
sketch5.addConstraint(Sketcher.Constraint("Coincident", 3, 2, 0, 1))
sketch5.addConstraint(Sketcher.Constraint("Vertical", 0))
sketch5.addConstraint(Sketcher.Constraint("Horizontal", 1))
sketch5.addConstraint(Sketcher.Constraint("Vertical", 2))
sketch5.addConstraint(Sketcher.Constraint("Horizontal", 3))
sketch5.addConstraint(Sketcher.Constraint("DistanceY", 0, 2, 0, 1, Q("3.5 mm")))
sketch5.addConstraint(Sketcher.Constraint("DistanceX", 1, 1, 1, 2, Q("0.45 mm")))
sketch5.addConstraint(Sketcher.Constraint("DistanceX", -1, 1, 1, 2, Q("7.1 mm")))
sketch5.addConstraint(Sketcher.Constraint("DistanceY", 0, 2, -1, 1, Q("1.75 mm")))
pad2 = body2.newObject("PartDesign::Pad", "Pad001")
pad2.Profile = sketch5
pad2.Length = 150
pad2.Reversed = True

# Sketch on YZ plane
sketch6 = body2.newObject("Sketcher::SketchObject", "Sketch005")
sketch6.AttachmentSupport = (doc.getObject("YZ_Plane001"), [""])
sketch6.MapMode = "FlatFace"
sketch6.AttachmentOffset = App.Placement(V(0, 0, 7.1), App.Rotation())
sketch6.addGeometry(Part.Circle(V(-3, 0, 0), V(0, 0, 1), 1.6), False)
sketch6.addGeometry(Part.Circle(V(-7, 0, 0), V(0, 0, 1), 1.6), False)
sketch6.addGeometry(Part.Circle(V(-11, 0, 0), V(0, 0, 1), 1.6), False)
sketch6.addGeometry(Part.Circle(V(-15, 0, 0), V(0, 0, 1), 1.6), False)
sketch6.addGeometry(Part.Circle(V(-19, 0, 0), V(0, 0, 1), 1.6), False)
sketch6.addGeometry(Part.Circle(V(-23, 0, 0), V(0, 0, 1), 1.6), False)
sketch6.addGeometry(Part.Circle(V(-27, 0, 0), V(0, 0, 1), 1.6), False)
sketch6.addGeometry(Part.Circle(V(-31, 0, 0), V(0, 0, 1), 1.6), False)
sketch6.addGeometry(Part.Circle(V(-35, 0, 0), V(0, 0, 1), 1.6), False)
sketch6.addGeometry(Part.Circle(V(-39, 0, 0), V(0, 0, 1), 1.6), False)
sketch6.addGeometry(Part.Circle(V(-43, 0, 0), V(0, 0, 1), 1.6), False)
sketch6.addGeometry(Part.Circle(V(-47, 0, 0), V(0, 0, 1), 1.6), False)
sketch6.addGeometry(Part.Circle(V(-51, 0, 0), V(0, 0, 1), 1.6), False)
sketch6.addGeometry(Part.Circle(V(-55, 0, 0), V(0, 0, 1), 1.6), False)
sketch6.addGeometry(Part.Circle(V(-59, 0, 0), V(0, 0, 1), 1.6), False)
sketch6.addGeometry(Part.Circle(V(-63, 0, 0), V(0, 0, 1), 1.6), False)
sketch6.addGeometry(Part.Circle(V(-67, 0, 0), V(0, 0, 1), 1.6), False)
sketch6.addGeometry(Part.Circle(V(-71, 0, 0), V(0, 0, 1), 1.6), False)
sketch6.addGeometry(Part.Circle(V(-75, 0, 0), V(0, 0, 1), 1.6), False)
sketch6.addGeometry(Part.Circle(V(-79, 0, 0), V(0, 0, 1), 1.6), False)
sketch6.addGeometry(Part.Circle(V(-83, 0, 0), V(0, 0, 1), 1.6), False)
sketch6.addGeometry(Part.Circle(V(-87, 0, 0), V(0, 0, 1), 1.6), False)
sketch6.addGeometry(Part.Circle(V(-91, 0, 0), V(0, 0, 1), 1.6), False)
sketch6.addGeometry(Part.Circle(V(-95, 0, 0), V(0, 0, 1), 1.6), False)
sketch6.addGeometry(Part.Circle(V(-99, 0, 0), V(0, 0, 1), 1.6), False)
sketch6.addGeometry(Part.Circle(V(-103, 0, 0), V(0, 0, 1), 1.6), False)
sketch6.addGeometry(Part.Circle(V(-107, 0, 0), V(0, 0, 1), 1.6), False)
sketch6.addGeometry(Part.Circle(V(-111, 0, 0), V(0, 0, 1), 1.6), False)
sketch6.addGeometry(Part.Circle(V(-115, 0, 0), V(0, 0, 1), 1.6), False)
sketch6.addGeometry(Part.Circle(V(-119, 0, 0), V(0, 0, 1), 1.6), False)
sketch6.addGeometry(Part.Circle(V(-123, 0, 0), V(0, 0, 1), 1.6), False)
sketch6.addGeometry(Part.Circle(V(-127, 0, 0), V(0, 0, 1), 1.6), False)
sketch6.addGeometry(Part.Circle(V(-131, 0, 0), V(0, 0, 1), 1.6), False)
sketch6.addGeometry(Part.Circle(V(-135, 0, 0), V(0, 0, 1), 1.6), False)
sketch6.addGeometry(Part.Circle(V(-139, 0, 0), V(0, 0, 1), 1.6), False)
sketch6.addGeometry(Part.Circle(V(-143, 0, 0), V(0, 0, 1), 1.6), False)
sketch6.addGeometry(Part.Circle(V(-147, 0, 0), V(0, 0, 1), 1.6), False)
sketch6.addConstraint(Sketcher.Constraint("Equal", 0, 1))
sketch6.addConstraint(Sketcher.Constraint("Equal", 1, 2))
sketch6.addConstraint(Sketcher.Constraint("Equal", 2, 3))
sketch6.addConstraint(Sketcher.Constraint("Equal", 3, 4))
sketch6.addConstraint(Sketcher.Constraint("Equal", 4, 5))
sketch6.addConstraint(Sketcher.Constraint("Equal", 5, 6))
sketch6.addConstraint(Sketcher.Constraint("Equal", 6, 7))
sketch6.addConstraint(Sketcher.Constraint("Equal", 7, 8))
sketch6.addConstraint(Sketcher.Constraint("Equal", 8, 9))
sketch6.addConstraint(Sketcher.Constraint("Equal", 9, 10))
sketch6.addConstraint(Sketcher.Constraint("Equal", 10, 11))
sketch6.addConstraint(Sketcher.Constraint("Equal", 11, 12))
sketch6.addConstraint(Sketcher.Constraint("Equal", 12, 13))
sketch6.addConstraint(Sketcher.Constraint("Equal", 13, 14))
sketch6.addConstraint(Sketcher.Constraint("Equal", 14, 15))
sketch6.addConstraint(Sketcher.Constraint("Equal", 15, 16))
sketch6.addConstraint(Sketcher.Constraint("Equal", 16, 17))
sketch6.addConstraint(Sketcher.Constraint("Equal", 17, 18))
sketch6.addConstraint(Sketcher.Constraint("Equal", 18, 19))
sketch6.addConstraint(Sketcher.Constraint("Equal", 19, 20))
sketch6.addConstraint(Sketcher.Constraint("Equal", 20, 21))
sketch6.addConstraint(Sketcher.Constraint("Equal", 21, 22))
sketch6.addConstraint(Sketcher.Constraint("Equal", 22, 23))
sketch6.addConstraint(Sketcher.Constraint("Equal", 23, 24))
sketch6.addConstraint(Sketcher.Constraint("Equal", 24, 25))
sketch6.addConstraint(Sketcher.Constraint("Equal", 25, 26))
sketch6.addConstraint(Sketcher.Constraint("Equal", 26, 27))
sketch6.addConstraint(Sketcher.Constraint("Equal", 27, 28))
sketch6.addConstraint(Sketcher.Constraint("Equal", 28, 29))
sketch6.addConstraint(Sketcher.Constraint("Equal", 29, 30))
sketch6.addConstraint(Sketcher.Constraint("Equal", 30, 31))
sketch6.addConstraint(Sketcher.Constraint("Equal", 31, 32))
sketch6.addConstraint(Sketcher.Constraint("Equal", 32, 33))
sketch6.addConstraint(Sketcher.Constraint("Equal", 33, 34))
sketch6.addConstraint(Sketcher.Constraint("Equal", 34, 35))
sketch6.addConstraint(Sketcher.Constraint("Equal", 35, 36))
sketch6.addConstraint(Sketcher.Constraint("PointOnObject", 0, 3, -1))
sketch6.addConstraint(Sketcher.Constraint("PointOnObject", 1, 3, -1))
sketch6.addConstraint(Sketcher.Constraint("PointOnObject", 2, 3, -1))
sketch6.addConstraint(Sketcher.Constraint("PointOnObject", 3, 3, -1))
sketch6.addConstraint(Sketcher.Constraint("PointOnObject", 4, 3, -1))
sketch6.addConstraint(Sketcher.Constraint("PointOnObject", 5, 3, -1))
sketch6.addConstraint(Sketcher.Constraint("PointOnObject", 6, 3, -1))
sketch6.addConstraint(Sketcher.Constraint("PointOnObject", 7, 3, -1))
sketch6.addConstraint(Sketcher.Constraint("PointOnObject", 8, 3, -1))
sketch6.addConstraint(Sketcher.Constraint("PointOnObject", 9, 3, -1))
sketch6.addConstraint(Sketcher.Constraint("PointOnObject", 10, 3, -1))
sketch6.addConstraint(Sketcher.Constraint("PointOnObject", 11, 3, -1))
sketch6.addConstraint(Sketcher.Constraint("PointOnObject", 12, 3, -1))
sketch6.addConstraint(Sketcher.Constraint("PointOnObject", 13, 3, -1))
sketch6.addConstraint(Sketcher.Constraint("PointOnObject", 14, 3, -1))
sketch6.addConstraint(Sketcher.Constraint("PointOnObject", 15, 3, -1))
sketch6.addConstraint(Sketcher.Constraint("PointOnObject", 16, 3, -1))
sketch6.addConstraint(Sketcher.Constraint("PointOnObject", 17, 3, -1))
sketch6.addConstraint(Sketcher.Constraint("PointOnObject", 18, 3, -1))
sketch6.addConstraint(Sketcher.Constraint("PointOnObject", 19, 3, -1))
sketch6.addConstraint(Sketcher.Constraint("PointOnObject", 20, 3, -1))
sketch6.addConstraint(Sketcher.Constraint("PointOnObject", 21, 3, -1))
sketch6.addConstraint(Sketcher.Constraint("PointOnObject", 22, 3, -1))
sketch6.addConstraint(Sketcher.Constraint("PointOnObject", 23, 3, -1))
sketch6.addConstraint(Sketcher.Constraint("PointOnObject", 24, 3, -1))
sketch6.addConstraint(Sketcher.Constraint("PointOnObject", 25, 3, -1))
sketch6.addConstraint(Sketcher.Constraint("PointOnObject", 26, 3, -1))
sketch6.addConstraint(Sketcher.Constraint("PointOnObject", 27, 3, -1))
sketch6.addConstraint(Sketcher.Constraint("PointOnObject", 28, 3, -1))
sketch6.addConstraint(Sketcher.Constraint("PointOnObject", 29, 3, -1))
sketch6.addConstraint(Sketcher.Constraint("PointOnObject", 30, 3, -1))
sketch6.addConstraint(Sketcher.Constraint("PointOnObject", 31, 3, -1))
sketch6.addConstraint(Sketcher.Constraint("PointOnObject", 32, 3, -1))
sketch6.addConstraint(Sketcher.Constraint("PointOnObject", 33, 3, -1))
sketch6.addConstraint(Sketcher.Constraint("PointOnObject", 34, 3, -1))
sketch6.addConstraint(Sketcher.Constraint("PointOnObject", 35, 3, -1))
sketch6.addConstraint(Sketcher.Constraint("PointOnObject", 36, 3, -1))
sketch6.addConstraint(Sketcher.Constraint("Diameter", 0, Q("3.25 mm")))
sketch6.addConstraint(Sketcher.Constraint("DistanceX", 0, 3, -1, 1, Q("3 mm")))
sketch6.addConstraint(Sketcher.Constraint("DistanceX", 1, 3, -1, 1, Q("7 mm")))
sketch6.addConstraint(Sketcher.Constraint("DistanceX", 2, 3, -1, 1, Q("11 mm")))
sketch6.addConstraint(Sketcher.Constraint("DistanceX", 3, 3, -1, 1, Q("15 mm")))
sketch6.addConstraint(Sketcher.Constraint("DistanceX", 4, 3, -1, 1, Q("19 mm")))
sketch6.addConstraint(Sketcher.Constraint("DistanceX", 5, 3, -1, 1, Q("23 mm")))
sketch6.addConstraint(Sketcher.Constraint("DistanceX", 6, 3, -1, 1, Q("27 mm")))
sketch6.addConstraint(Sketcher.Constraint("DistanceX", 7, 3, -1, 1, Q("31 mm")))
sketch6.addConstraint(Sketcher.Constraint("DistanceX", 8, 3, -1, 1, Q("35 mm")))
sketch6.addConstraint(Sketcher.Constraint("DistanceX", 9, 3, -1, 1, Q("39 mm")))
sketch6.addConstraint(Sketcher.Constraint("DistanceX", 10, 3, -1, 1, Q("43 mm")))
sketch6.addConstraint(Sketcher.Constraint("DistanceX", 11, 3, -1, 1, Q("47 mm")))
sketch6.addConstraint(Sketcher.Constraint("DistanceX", 12, 3, -1, 1, Q("51 mm")))
sketch6.addConstraint(Sketcher.Constraint("DistanceX", 13, 3, -1, 1, Q("55 mm")))
sketch6.addConstraint(Sketcher.Constraint("DistanceX", 14, 3, -1, 1, Q("59 mm")))
sketch6.addConstraint(Sketcher.Constraint("DistanceX", 15, 3, -1, 1, Q("63 mm")))
sketch6.addConstraint(Sketcher.Constraint("DistanceX", 16, 3, -1, 1, Q("67 mm")))
sketch6.addConstraint(Sketcher.Constraint("DistanceX", 17, 3, -1, 1, Q("71 mm")))
sketch6.addConstraint(Sketcher.Constraint("DistanceX", 18, 3, -1, 1, Q("75 mm")))
sketch6.addConstraint(Sketcher.Constraint("DistanceX", 19, 3, -1, 1, Q("79 mm")))
sketch6.addConstraint(Sketcher.Constraint("DistanceX", 20, 3, -1, 1, Q("83 mm")))
sketch6.addConstraint(Sketcher.Constraint("DistanceX", 21, 3, -1, 1, Q("87 mm")))
sketch6.addConstraint(Sketcher.Constraint("DistanceX", 22, 3, -1, 1, Q("91 mm")))
sketch6.addConstraint(Sketcher.Constraint("DistanceX", 23, 3, -1, 1, Q("95 mm")))
sketch6.addConstraint(Sketcher.Constraint("DistanceX", 24, 3, -1, 1, Q("99 mm")))
sketch6.addConstraint(Sketcher.Constraint("DistanceX", 25, 3, -1, 1, Q("103 mm")))
sketch6.addConstraint(Sketcher.Constraint("DistanceX", 26, 3, -1, 1, Q("107 mm")))
sketch6.addConstraint(Sketcher.Constraint("DistanceX", 27, 3, -1, 1, Q("111 mm")))
sketch6.addConstraint(Sketcher.Constraint("DistanceX", 28, 3, -1, 1, Q("115 mm")))
sketch6.addConstraint(Sketcher.Constraint("DistanceX", 29, 3, -1, 1, Q("119 mm")))
sketch6.addConstraint(Sketcher.Constraint("DistanceX", 30, 3, -1, 1, Q("123 mm")))
sketch6.addConstraint(Sketcher.Constraint("DistanceX", 31, 3, -1, 1, Q("127 mm")))
sketch6.addConstraint(Sketcher.Constraint("DistanceX", 32, 3, -1, 1, Q("131 mm")))
sketch6.addConstraint(Sketcher.Constraint("DistanceX", 33, 3, -1, 1, Q("135 mm")))
sketch6.addConstraint(Sketcher.Constraint("DistanceX", 34, 3, -1, 1, Q("139 mm")))
sketch6.addConstraint(Sketcher.Constraint("DistanceX", 35, 3, -1, 1, Q("143 mm")))
sketch6.addConstraint(Sketcher.Constraint("DistanceX", 36, 3, -1, 1, Q("147 mm")))
pocket4 = body2.newObject("PartDesign::Pocket", "Pocket003")
pocket4.Profile = sketch6
pocket4.Length = 1
body3 = doc.addObject("PartDesign::Body", "Body002")
doc.recompute()

mirroring = doc.addObject("Part::Mirroring", "Mirroring")
mirroring.Source = body2
mirroring.Base = V(0, 0, 0)
mirroring.Normal = V(1, 0, 0)
body3.BaseFeature = mirroring
doc.recompute()
mirroring.Visibility = False

doc.recompute()
